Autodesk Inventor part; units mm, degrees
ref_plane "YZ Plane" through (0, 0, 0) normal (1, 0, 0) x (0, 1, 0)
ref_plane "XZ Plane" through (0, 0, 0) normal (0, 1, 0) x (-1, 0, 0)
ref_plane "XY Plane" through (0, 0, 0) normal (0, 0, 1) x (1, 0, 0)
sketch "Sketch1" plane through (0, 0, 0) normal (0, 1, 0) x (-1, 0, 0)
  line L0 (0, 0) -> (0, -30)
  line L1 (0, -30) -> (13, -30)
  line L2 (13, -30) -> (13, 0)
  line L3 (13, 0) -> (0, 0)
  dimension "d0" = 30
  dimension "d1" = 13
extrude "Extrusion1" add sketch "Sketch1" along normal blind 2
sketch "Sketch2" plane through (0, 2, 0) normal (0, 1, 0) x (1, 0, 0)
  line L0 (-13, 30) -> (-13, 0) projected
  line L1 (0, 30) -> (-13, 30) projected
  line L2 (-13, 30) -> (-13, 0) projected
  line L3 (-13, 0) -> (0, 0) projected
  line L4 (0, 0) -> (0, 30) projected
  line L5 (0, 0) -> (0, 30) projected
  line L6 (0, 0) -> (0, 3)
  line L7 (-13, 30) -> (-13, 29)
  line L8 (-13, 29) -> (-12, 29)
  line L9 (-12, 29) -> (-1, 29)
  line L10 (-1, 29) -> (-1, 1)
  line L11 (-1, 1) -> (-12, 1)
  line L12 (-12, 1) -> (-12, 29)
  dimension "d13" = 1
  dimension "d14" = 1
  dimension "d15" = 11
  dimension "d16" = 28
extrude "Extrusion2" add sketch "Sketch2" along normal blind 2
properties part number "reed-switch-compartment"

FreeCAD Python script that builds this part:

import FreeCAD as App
import Part
import Sketcher

doc = App.newDocument("Part")
params = doc.addObject("Spreadsheet::Sheet", "Params")
for row, (alias, value) in enumerate([
    ("sketch1_width", "13 mm"),
    ("sketch1_height", "30 mm"),
    ("pad1_length", "2 mm"),
    ("sketch2_width", "11 mm"),
    ("sketch2_height", "1 mm"),
    ("sketch2_height2", "28 mm"),
    ("pad2_length", "2 mm"),
], start=1):
    params.set(f"A{row}", alias)
    params.set(f"B{row}", "=" + value)
    params.setAlias(f"B{row}", alias)

body = doc.addObject("PartDesign::Body", "Body")

sketch1 = doc.addObject("Sketcher::SketchObject", "Sketch")
body.addObject(sketch1)
sketch1.AttachmentSupport = (doc.XZ_Plane, [""])
sketch1.MapMode = "FlatFace"
sketch1.addGeometry(Part.LineSegment(App.Vector(-13, 0, 0), App.Vector(0, 0, 0)), False)
sketch1.addGeometry(Part.LineSegment(App.Vector(0, 0, 0), App.Vector(0, -30, 0)), False)
sketch1.addGeometry(Part.LineSegment(App.Vector(0, -30, 0), App.Vector(-13, -30, 0)), False)
sketch1.addGeometry(Part.LineSegment(App.Vector(-13, -30, 0), App.Vector(-13, 0, 0)), False)
sketch1.addConstraint(Sketcher.Constraint("Coincident", 0, 2, 1, 1))
sketch1.addConstraint(Sketcher.Constraint("Coincident", 1, 2, 2, 1))
sketch1.addConstraint(Sketcher.Constraint("Coincident", 2, 2, 3, 1))
sketch1.addConstraint(Sketcher.Constraint("Coincident", 3, 2, 0, 1))
sketch1.addConstraint(Sketcher.Constraint("Horizontal", 0))
sketch1.addConstraint(Sketcher.Constraint("Vertical", 1))
sketch1.addConstraint(Sketcher.Constraint("Horizontal", 2))
sketch1.addConstraint(Sketcher.Constraint("Vertical", 3))
sketch1.addConstraint(Sketcher.Constraint("Coincident", 0, 2, -1, 1))
sketch1.addConstraint(Sketcher.Constraint("DistanceX", 0, 1, 0, 2, 13.0))
sketch1.addConstraint(Sketcher.Constraint("DistanceY", 1, 2, 1, 1, 30.0))
sketch1.setExpression("Constraints[9]", "Params.sketch1_width")
sketch1.setExpression("Constraints[10]", "Params.sketch1_height")
pad1 = doc.addObject("PartDesign::Pad", "Pad")
body.addObject(pad1)
pad1.Profile = sketch1
pad1.setExpression("Length", "Params.pad1_length")
pad1.Reversed = True

sketch2 = doc.addObject("Sketcher::SketchObject", "Sketch001")
body.addObject(sketch2)
sketch2.AttachmentSupport = (doc.XZ_Plane, [""])
sketch2.MapMode = "FlatFace"
sketch2.AttachmentOffset = App.Placement(App.Vector(0, 0, -2), App.Rotation())
sketch2.addGeometry(Part.LineSegment(App.Vector(0, -30, 0), App.Vector(-13, -30, 0)), False)
sketch2.addGeometry(Part.LineSegment(App.Vector(-13, -30, 0), App.Vector(-13, -29, 0)), False)
sketch2.addGeometry(Part.LineSegment(App.Vector(-13, -29, 0), App.Vector(-13, 0, 0)), False)
sketch2.addGeometry(Part.LineSegment(App.Vector(-13, 0, 0), App.Vector(0, 0, 0)), False)
sketch2.addGeometry(Part.LineSegment(App.Vector(0, 0, 0), App.Vector(0, -30, 0)), False)
sketch2.addGeometry(Part.LineSegment(App.Vector(-12, -1, 0), App.Vector(-12, -29, 0)), False)
sketch2.addGeometry(Part.LineSegment(App.Vector(-12, -29, 0), App.Vector(-1, -29, 0)), False)
sketch2.addGeometry(Part.LineSegment(App.Vector(-1, -29, 0), App.Vector(-1, -1, 0)), False)
sketch2.addGeometry(Part.LineSegment(App.Vector(-1, -1, 0), App.Vector(-12, -1, 0)), False)
sketch2.addConstraint(Sketcher.Constraint("Coincident", 0, 2, 1, 1))
sketch2.addConstraint(Sketcher.Constraint("Coincident", 1, 2, 2, 1))
sketch2.addConstraint(Sketcher.Constraint("Coincident", 2, 2, 3, 1))
sketch2.addConstraint(Sketcher.Constraint("Coincident", 3, 2, 4, 1))
sketch2.addConstraint(Sketcher.Constraint("Coincident", 4, 2, 0, 1))
sketch2.addConstraint(Sketcher.Constraint("Coincident", 5, 2, 6, 1))
sketch2.addConstraint(Sketcher.Constraint("Coincident", 6, 2, 7, 1))
sketch2.addConstraint(Sketcher.Constraint("Coincident", 7, 2, 8, 1))
sketch2.addConstraint(Sketcher.Constraint("Coincident", 8, 2, 5, 1))
sketch2.addConstraint(Sketcher.Constraint("Horizontal", 0))
sketch2.addConstraint(Sketcher.Constraint("Vertical", 1))
sketch2.addConstraint(Sketcher.Constraint("Vertical", 2))
sketch2.addConstraint(Sketcher.Constraint("Horizontal", 3))
sketch2.addConstraint(Sketcher.Constraint("Vertical", 4))
sketch2.addConstraint(Sketcher.Constraint("Vertical", 5))
sketch2.addConstraint(Sketcher.Constraint("Horizontal", 6))
sketch2.addConstraint(Sketcher.Constraint("Vertical", 7))
sketch2.addConstraint(Sketcher.Constraint("Horizontal", 8))
sketch2.addConstraint(Sketcher.Constraint("Coincident", 3, 2, -1, 1))
sketch2.addConstraint(Sketcher.Constraint("Horizontal", 1, 2, 5, 2))
sketch2.addConstraint(Sketcher.Constraint("DistanceX", 6, 1, 6, 2, 11.0))
sketch2.addConstraint(Sketcher.Constraint("DistanceY", 1, 1, 1, 2, 1.0))
sketch2.addConstraint(Sketcher.Constraint("DistanceY", 5, 2, 5, 1, 28.0))
sketch2.addConstraint(Sketcher.Constraint("DistanceX", 6, 2, -1, 1, 1.0))
sketch2.addConstraint(Sketcher.Constraint("DistanceY", 7, 2, -1, 1, 1.0))
sketch2.addConstraint(Sketcher.Constraint("DistanceX", 1, 2, 5, 2, 1.0))
sketch2.setExpression("Constraints[20]", "Params.sketch2_width")
sketch2.setExpression("Constraints[21]", "Params.sketch2_height")
sketch2.setExpression("Constraints[22]", "Params.sketch2_height2")
pad2 = doc.addObject("PartDesign::Pad", "Pad001")
body.addObject(pad2)
pad2.Profile = sketch2
pad2.setExpression("Length", "Params.pad2_length")
pad2.Reversed = True

doc.recompute()
